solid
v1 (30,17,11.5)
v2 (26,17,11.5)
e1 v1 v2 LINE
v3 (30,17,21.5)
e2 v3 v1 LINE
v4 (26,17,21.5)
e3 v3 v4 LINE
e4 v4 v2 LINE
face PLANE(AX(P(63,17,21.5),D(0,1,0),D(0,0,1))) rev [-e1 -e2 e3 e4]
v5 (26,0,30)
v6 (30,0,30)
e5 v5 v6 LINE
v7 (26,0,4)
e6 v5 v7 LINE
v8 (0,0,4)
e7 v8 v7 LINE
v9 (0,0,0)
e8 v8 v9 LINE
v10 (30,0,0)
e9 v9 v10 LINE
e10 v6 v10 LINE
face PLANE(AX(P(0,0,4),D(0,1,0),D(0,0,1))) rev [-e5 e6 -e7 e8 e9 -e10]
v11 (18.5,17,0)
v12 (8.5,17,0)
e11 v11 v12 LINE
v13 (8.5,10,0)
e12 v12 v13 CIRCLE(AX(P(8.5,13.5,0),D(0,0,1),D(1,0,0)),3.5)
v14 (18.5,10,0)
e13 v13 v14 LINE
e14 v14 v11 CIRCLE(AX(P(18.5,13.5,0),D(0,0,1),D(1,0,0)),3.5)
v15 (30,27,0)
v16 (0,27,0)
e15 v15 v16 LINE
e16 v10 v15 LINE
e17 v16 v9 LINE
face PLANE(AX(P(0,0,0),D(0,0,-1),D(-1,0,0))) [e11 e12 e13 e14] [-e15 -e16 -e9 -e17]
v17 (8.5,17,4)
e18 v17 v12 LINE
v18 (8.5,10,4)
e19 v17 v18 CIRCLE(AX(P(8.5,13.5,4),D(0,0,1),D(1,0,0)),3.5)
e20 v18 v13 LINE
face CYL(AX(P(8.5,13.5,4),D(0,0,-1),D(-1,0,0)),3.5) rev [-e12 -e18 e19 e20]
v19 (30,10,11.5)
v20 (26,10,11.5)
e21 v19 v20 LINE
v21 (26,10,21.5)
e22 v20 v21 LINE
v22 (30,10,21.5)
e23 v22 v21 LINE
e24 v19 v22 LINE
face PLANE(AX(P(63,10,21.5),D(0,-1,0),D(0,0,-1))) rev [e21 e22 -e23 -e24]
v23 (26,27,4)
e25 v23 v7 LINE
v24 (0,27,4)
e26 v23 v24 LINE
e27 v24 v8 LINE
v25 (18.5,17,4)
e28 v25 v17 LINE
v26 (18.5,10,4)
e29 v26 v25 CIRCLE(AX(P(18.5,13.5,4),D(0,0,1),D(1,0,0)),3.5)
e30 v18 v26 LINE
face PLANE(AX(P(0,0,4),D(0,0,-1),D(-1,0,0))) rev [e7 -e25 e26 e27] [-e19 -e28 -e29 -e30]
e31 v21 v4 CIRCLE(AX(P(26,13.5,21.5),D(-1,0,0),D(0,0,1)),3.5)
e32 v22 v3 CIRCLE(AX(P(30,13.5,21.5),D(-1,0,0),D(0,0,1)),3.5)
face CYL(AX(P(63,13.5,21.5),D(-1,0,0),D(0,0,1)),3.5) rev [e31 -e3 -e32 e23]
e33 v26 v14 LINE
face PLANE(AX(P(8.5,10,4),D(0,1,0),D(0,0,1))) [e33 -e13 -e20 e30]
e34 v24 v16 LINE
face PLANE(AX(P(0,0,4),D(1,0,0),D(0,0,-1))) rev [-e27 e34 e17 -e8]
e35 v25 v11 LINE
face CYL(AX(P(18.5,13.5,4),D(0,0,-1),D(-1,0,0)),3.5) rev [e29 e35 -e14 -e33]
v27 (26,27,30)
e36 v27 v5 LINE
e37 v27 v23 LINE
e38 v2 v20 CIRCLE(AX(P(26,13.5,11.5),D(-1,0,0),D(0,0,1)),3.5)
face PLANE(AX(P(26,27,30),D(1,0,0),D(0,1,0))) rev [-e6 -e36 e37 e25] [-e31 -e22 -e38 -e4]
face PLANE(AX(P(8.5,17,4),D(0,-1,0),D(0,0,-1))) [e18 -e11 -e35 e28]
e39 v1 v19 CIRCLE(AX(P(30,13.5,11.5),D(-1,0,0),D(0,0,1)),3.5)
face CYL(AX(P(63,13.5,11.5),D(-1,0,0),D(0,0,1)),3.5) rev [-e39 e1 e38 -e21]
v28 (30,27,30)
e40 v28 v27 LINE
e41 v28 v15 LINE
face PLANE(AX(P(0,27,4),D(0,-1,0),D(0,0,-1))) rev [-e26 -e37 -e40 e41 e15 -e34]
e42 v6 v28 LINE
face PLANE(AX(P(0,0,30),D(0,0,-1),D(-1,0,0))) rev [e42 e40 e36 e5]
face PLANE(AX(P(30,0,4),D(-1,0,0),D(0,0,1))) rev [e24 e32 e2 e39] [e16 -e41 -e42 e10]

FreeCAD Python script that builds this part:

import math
import FreeCAD as App
import Part
import Sketcher

V = App.Vector

doc = App.newDocument("Part")
body = doc.addObject("PartDesign::Body", "Body")

# Sketch on XY plane
sketch1 = body.newObject("Sketcher::SketchObject", "Sketch")
sketch1.AttachmentSupport = (doc.getObject("XY_Plane"), [""])
sketch1.MapMode = "FlatFace"
sketch1.addGeometry([
    Part.LineSegment(V(0, 27, 0), V(0, 0, 0)),  # 0
    Part.LineSegment(V(0, 0, 0), V(30, 0, 0)),  # 1
    Part.LineSegment(V(30, 0, 0), V(30, 27, 0)),  # 2
    Part.LineSegment(V(30, 27, 0), V(0, 27, 0)),  # 3
    Part.ArcOfCircle(Part.Circle(V(8.5, 13.5, 0), V(0, 0, 1), 3.5), math.radians(90), math.radians(270)),  # 4
    Part.LineSegment(V(8.5, 17, 0), V(18.5, 17, 0)),  # 5
    Part.ArcOfCircle(Part.Circle(V(18.5, 13.5, 0), V(0, 0, 1), 3.5), math.radians(-90), math.radians(90)),  # 6
    Part.LineSegment(V(18.5, 10, 0), V(8.5, 10, 0)),  # 7
], False)
sketch1.addConstraint([
    Sketcher.Constraint("Coincident", 0, 2, 1, 1),
    Sketcher.Constraint("Coincident", 1, 2, 2, 1),
    Sketcher.Constraint("Coincident", 2, 2, 3, 1),
    Sketcher.Constraint("Coincident", 3, 2, 0, 1),
    Sketcher.Constraint("Tangent", 4, 1, 5, 1),
    Sketcher.Constraint("Tangent", 5, 2, 6, 2),
    Sketcher.Constraint("Tangent", 6, 1, 7, 1),
    Sketcher.Constraint("Tangent", 7, 2, 4, 2),
    Sketcher.Constraint("Vertical", 0),
    Sketcher.Constraint("Horizontal", 1),
    Sketcher.Constraint("Vertical", 2),
    Sketcher.Constraint("Horizontal", 3),
    Sketcher.Constraint("Horizontal", 5),
    Sketcher.Constraint("Horizontal", 7),
    Sketcher.Constraint("Coincident", 0, 2, -1, 1),
    Sketcher.Constraint("Radius", 4, 3.5),
    Sketcher.Constraint("DistanceX", 1, 1, 1, 2, 30.0),
    Sketcher.Constraint("DistanceX", 5, 1, 5, 2, 10.0),
    Sketcher.Constraint("DistanceY", 0, 2, 0, 1, 27.0),
    Sketcher.Constraint("DistanceY", -1, 1, 4, 1, 17.0),
    Sketcher.Constraint("DistanceX", -1, 1, 4, 3, 8.5),
])
pad1 = body.newObject("PartDesign::Pad", "Pad")
pad1.Profile = sketch1
pad1.Length = 4

# Sketch on XY plane
sketch2 = body.newObject("Sketcher::SketchObject", "Sketch001")
sketch2.AttachmentSupport = (doc.getObject("XY_Plane"), [""])
sketch2.MapMode = "FlatFace"
sketch2.AttachmentOffset = App.Placement(V(0, 0, 4), App.Rotation())
sketch2.addGeometry([
    Part.LineSegment(V(26, 27, 0), V(26, 0, 0)),
    Part.LineSegment(V(26, 0, 0), V(30, 0, 0)),
    Part.LineSegment(V(30, 0, 0), V(30, 27, 0)),
    Part.LineSegment(V(30, 27, 0), V(26, 27, 0)),
], False)
sketch2.addConstraint([
    Sketcher.Constraint("Coincident", 0, 2, 1, 1),
    Sketcher.Constraint("Coincident", 1, 2, 2, 1),
    Sketcher.Constraint("Coincident", 2, 2, 3, 1),
    Sketcher.Constraint("Coincident", 3, 2, 0, 1),
    Sketcher.Constraint("Vertical", 0),
    Sketcher.Constraint("Horizontal", 1),
    Sketcher.Constraint("Vertical", 2),
    Sketcher.Constraint("Horizontal", 3),
    Sketcher.Constraint("PointOnObject", 0, 2, -1),
    Sketcher.Constraint("DistanceX", 1, 1, 1, 2, 4.0),
    Sketcher.Constraint("DistanceY", 0, 2, 0, 1, 27.0),
    Sketcher.Constraint("DistanceX", -1, 1, 0, 2, 26.0),
])
pad2 = body.newObject("PartDesign::Pad", "Pad001")
pad2.Profile = sketch2
pad2.Length = 26

# Sketch on YZ plane
sketch3 = body.newObject("Sketcher::SketchObject", "Sketch002")
sketch3.AttachmentSupport = (doc.getObject("YZ_Plane"), [""])
sketch3.MapMode = "FlatFace"
sketch3.AttachmentOffset = App.Placement(V(0, 0, 26), App.Rotation())
sketch3.addGeometry([
    Part.LineSegment(V(10, 11.5, 0), V(10, 21.5, 0)),
    Part.ArcOfCircle(Part.Circle(V(13.5, 21.5, 0), V(0, 0, 1), 3.5), math.radians(0), math.radians(180)),
    Part.LineSegment(V(17, 21.5, 0), V(17, 11.5, 0)),
    Part.ArcOfCircle(Part.Circle(V(13.5, 11.5, 0), V(0, 0, 1), 3.5), math.radians(180), math.radians(360)),
], False)
sketch3.addConstraint([
    Sketcher.Constraint("Tangent", 0, 2, 1, 2),
    Sketcher.Constraint("Tangent", 1, 1, 2, 1),
    Sketcher.Constraint("Tangent", 2, 2, 3, 2),
    Sketcher.Constraint("Tangent", 3, 1, 0, 1),
    Sketcher.Constraint("Vertical", 0),
    Sketcher.Constraint("Vertical", 2),
    Sketcher.Constraint("Radius", 1, 3.5),
    Sketcher.Constraint("DistanceY", 0, 1, 0, 2, 10.0),
    Sketcher.Constraint("DistanceX", -1, 1, 0, 2, 10.0),
    Sketcher.Constraint("DistanceY", -1, 1, 1, 3, 21.5),
])
pocket1 = body.newObject("PartDesign::Pocket", "Pocket")
pocket1.Profile = sketch3
pocket1.Length = 37
pocket1.Reversed = True

doc.recompute()
